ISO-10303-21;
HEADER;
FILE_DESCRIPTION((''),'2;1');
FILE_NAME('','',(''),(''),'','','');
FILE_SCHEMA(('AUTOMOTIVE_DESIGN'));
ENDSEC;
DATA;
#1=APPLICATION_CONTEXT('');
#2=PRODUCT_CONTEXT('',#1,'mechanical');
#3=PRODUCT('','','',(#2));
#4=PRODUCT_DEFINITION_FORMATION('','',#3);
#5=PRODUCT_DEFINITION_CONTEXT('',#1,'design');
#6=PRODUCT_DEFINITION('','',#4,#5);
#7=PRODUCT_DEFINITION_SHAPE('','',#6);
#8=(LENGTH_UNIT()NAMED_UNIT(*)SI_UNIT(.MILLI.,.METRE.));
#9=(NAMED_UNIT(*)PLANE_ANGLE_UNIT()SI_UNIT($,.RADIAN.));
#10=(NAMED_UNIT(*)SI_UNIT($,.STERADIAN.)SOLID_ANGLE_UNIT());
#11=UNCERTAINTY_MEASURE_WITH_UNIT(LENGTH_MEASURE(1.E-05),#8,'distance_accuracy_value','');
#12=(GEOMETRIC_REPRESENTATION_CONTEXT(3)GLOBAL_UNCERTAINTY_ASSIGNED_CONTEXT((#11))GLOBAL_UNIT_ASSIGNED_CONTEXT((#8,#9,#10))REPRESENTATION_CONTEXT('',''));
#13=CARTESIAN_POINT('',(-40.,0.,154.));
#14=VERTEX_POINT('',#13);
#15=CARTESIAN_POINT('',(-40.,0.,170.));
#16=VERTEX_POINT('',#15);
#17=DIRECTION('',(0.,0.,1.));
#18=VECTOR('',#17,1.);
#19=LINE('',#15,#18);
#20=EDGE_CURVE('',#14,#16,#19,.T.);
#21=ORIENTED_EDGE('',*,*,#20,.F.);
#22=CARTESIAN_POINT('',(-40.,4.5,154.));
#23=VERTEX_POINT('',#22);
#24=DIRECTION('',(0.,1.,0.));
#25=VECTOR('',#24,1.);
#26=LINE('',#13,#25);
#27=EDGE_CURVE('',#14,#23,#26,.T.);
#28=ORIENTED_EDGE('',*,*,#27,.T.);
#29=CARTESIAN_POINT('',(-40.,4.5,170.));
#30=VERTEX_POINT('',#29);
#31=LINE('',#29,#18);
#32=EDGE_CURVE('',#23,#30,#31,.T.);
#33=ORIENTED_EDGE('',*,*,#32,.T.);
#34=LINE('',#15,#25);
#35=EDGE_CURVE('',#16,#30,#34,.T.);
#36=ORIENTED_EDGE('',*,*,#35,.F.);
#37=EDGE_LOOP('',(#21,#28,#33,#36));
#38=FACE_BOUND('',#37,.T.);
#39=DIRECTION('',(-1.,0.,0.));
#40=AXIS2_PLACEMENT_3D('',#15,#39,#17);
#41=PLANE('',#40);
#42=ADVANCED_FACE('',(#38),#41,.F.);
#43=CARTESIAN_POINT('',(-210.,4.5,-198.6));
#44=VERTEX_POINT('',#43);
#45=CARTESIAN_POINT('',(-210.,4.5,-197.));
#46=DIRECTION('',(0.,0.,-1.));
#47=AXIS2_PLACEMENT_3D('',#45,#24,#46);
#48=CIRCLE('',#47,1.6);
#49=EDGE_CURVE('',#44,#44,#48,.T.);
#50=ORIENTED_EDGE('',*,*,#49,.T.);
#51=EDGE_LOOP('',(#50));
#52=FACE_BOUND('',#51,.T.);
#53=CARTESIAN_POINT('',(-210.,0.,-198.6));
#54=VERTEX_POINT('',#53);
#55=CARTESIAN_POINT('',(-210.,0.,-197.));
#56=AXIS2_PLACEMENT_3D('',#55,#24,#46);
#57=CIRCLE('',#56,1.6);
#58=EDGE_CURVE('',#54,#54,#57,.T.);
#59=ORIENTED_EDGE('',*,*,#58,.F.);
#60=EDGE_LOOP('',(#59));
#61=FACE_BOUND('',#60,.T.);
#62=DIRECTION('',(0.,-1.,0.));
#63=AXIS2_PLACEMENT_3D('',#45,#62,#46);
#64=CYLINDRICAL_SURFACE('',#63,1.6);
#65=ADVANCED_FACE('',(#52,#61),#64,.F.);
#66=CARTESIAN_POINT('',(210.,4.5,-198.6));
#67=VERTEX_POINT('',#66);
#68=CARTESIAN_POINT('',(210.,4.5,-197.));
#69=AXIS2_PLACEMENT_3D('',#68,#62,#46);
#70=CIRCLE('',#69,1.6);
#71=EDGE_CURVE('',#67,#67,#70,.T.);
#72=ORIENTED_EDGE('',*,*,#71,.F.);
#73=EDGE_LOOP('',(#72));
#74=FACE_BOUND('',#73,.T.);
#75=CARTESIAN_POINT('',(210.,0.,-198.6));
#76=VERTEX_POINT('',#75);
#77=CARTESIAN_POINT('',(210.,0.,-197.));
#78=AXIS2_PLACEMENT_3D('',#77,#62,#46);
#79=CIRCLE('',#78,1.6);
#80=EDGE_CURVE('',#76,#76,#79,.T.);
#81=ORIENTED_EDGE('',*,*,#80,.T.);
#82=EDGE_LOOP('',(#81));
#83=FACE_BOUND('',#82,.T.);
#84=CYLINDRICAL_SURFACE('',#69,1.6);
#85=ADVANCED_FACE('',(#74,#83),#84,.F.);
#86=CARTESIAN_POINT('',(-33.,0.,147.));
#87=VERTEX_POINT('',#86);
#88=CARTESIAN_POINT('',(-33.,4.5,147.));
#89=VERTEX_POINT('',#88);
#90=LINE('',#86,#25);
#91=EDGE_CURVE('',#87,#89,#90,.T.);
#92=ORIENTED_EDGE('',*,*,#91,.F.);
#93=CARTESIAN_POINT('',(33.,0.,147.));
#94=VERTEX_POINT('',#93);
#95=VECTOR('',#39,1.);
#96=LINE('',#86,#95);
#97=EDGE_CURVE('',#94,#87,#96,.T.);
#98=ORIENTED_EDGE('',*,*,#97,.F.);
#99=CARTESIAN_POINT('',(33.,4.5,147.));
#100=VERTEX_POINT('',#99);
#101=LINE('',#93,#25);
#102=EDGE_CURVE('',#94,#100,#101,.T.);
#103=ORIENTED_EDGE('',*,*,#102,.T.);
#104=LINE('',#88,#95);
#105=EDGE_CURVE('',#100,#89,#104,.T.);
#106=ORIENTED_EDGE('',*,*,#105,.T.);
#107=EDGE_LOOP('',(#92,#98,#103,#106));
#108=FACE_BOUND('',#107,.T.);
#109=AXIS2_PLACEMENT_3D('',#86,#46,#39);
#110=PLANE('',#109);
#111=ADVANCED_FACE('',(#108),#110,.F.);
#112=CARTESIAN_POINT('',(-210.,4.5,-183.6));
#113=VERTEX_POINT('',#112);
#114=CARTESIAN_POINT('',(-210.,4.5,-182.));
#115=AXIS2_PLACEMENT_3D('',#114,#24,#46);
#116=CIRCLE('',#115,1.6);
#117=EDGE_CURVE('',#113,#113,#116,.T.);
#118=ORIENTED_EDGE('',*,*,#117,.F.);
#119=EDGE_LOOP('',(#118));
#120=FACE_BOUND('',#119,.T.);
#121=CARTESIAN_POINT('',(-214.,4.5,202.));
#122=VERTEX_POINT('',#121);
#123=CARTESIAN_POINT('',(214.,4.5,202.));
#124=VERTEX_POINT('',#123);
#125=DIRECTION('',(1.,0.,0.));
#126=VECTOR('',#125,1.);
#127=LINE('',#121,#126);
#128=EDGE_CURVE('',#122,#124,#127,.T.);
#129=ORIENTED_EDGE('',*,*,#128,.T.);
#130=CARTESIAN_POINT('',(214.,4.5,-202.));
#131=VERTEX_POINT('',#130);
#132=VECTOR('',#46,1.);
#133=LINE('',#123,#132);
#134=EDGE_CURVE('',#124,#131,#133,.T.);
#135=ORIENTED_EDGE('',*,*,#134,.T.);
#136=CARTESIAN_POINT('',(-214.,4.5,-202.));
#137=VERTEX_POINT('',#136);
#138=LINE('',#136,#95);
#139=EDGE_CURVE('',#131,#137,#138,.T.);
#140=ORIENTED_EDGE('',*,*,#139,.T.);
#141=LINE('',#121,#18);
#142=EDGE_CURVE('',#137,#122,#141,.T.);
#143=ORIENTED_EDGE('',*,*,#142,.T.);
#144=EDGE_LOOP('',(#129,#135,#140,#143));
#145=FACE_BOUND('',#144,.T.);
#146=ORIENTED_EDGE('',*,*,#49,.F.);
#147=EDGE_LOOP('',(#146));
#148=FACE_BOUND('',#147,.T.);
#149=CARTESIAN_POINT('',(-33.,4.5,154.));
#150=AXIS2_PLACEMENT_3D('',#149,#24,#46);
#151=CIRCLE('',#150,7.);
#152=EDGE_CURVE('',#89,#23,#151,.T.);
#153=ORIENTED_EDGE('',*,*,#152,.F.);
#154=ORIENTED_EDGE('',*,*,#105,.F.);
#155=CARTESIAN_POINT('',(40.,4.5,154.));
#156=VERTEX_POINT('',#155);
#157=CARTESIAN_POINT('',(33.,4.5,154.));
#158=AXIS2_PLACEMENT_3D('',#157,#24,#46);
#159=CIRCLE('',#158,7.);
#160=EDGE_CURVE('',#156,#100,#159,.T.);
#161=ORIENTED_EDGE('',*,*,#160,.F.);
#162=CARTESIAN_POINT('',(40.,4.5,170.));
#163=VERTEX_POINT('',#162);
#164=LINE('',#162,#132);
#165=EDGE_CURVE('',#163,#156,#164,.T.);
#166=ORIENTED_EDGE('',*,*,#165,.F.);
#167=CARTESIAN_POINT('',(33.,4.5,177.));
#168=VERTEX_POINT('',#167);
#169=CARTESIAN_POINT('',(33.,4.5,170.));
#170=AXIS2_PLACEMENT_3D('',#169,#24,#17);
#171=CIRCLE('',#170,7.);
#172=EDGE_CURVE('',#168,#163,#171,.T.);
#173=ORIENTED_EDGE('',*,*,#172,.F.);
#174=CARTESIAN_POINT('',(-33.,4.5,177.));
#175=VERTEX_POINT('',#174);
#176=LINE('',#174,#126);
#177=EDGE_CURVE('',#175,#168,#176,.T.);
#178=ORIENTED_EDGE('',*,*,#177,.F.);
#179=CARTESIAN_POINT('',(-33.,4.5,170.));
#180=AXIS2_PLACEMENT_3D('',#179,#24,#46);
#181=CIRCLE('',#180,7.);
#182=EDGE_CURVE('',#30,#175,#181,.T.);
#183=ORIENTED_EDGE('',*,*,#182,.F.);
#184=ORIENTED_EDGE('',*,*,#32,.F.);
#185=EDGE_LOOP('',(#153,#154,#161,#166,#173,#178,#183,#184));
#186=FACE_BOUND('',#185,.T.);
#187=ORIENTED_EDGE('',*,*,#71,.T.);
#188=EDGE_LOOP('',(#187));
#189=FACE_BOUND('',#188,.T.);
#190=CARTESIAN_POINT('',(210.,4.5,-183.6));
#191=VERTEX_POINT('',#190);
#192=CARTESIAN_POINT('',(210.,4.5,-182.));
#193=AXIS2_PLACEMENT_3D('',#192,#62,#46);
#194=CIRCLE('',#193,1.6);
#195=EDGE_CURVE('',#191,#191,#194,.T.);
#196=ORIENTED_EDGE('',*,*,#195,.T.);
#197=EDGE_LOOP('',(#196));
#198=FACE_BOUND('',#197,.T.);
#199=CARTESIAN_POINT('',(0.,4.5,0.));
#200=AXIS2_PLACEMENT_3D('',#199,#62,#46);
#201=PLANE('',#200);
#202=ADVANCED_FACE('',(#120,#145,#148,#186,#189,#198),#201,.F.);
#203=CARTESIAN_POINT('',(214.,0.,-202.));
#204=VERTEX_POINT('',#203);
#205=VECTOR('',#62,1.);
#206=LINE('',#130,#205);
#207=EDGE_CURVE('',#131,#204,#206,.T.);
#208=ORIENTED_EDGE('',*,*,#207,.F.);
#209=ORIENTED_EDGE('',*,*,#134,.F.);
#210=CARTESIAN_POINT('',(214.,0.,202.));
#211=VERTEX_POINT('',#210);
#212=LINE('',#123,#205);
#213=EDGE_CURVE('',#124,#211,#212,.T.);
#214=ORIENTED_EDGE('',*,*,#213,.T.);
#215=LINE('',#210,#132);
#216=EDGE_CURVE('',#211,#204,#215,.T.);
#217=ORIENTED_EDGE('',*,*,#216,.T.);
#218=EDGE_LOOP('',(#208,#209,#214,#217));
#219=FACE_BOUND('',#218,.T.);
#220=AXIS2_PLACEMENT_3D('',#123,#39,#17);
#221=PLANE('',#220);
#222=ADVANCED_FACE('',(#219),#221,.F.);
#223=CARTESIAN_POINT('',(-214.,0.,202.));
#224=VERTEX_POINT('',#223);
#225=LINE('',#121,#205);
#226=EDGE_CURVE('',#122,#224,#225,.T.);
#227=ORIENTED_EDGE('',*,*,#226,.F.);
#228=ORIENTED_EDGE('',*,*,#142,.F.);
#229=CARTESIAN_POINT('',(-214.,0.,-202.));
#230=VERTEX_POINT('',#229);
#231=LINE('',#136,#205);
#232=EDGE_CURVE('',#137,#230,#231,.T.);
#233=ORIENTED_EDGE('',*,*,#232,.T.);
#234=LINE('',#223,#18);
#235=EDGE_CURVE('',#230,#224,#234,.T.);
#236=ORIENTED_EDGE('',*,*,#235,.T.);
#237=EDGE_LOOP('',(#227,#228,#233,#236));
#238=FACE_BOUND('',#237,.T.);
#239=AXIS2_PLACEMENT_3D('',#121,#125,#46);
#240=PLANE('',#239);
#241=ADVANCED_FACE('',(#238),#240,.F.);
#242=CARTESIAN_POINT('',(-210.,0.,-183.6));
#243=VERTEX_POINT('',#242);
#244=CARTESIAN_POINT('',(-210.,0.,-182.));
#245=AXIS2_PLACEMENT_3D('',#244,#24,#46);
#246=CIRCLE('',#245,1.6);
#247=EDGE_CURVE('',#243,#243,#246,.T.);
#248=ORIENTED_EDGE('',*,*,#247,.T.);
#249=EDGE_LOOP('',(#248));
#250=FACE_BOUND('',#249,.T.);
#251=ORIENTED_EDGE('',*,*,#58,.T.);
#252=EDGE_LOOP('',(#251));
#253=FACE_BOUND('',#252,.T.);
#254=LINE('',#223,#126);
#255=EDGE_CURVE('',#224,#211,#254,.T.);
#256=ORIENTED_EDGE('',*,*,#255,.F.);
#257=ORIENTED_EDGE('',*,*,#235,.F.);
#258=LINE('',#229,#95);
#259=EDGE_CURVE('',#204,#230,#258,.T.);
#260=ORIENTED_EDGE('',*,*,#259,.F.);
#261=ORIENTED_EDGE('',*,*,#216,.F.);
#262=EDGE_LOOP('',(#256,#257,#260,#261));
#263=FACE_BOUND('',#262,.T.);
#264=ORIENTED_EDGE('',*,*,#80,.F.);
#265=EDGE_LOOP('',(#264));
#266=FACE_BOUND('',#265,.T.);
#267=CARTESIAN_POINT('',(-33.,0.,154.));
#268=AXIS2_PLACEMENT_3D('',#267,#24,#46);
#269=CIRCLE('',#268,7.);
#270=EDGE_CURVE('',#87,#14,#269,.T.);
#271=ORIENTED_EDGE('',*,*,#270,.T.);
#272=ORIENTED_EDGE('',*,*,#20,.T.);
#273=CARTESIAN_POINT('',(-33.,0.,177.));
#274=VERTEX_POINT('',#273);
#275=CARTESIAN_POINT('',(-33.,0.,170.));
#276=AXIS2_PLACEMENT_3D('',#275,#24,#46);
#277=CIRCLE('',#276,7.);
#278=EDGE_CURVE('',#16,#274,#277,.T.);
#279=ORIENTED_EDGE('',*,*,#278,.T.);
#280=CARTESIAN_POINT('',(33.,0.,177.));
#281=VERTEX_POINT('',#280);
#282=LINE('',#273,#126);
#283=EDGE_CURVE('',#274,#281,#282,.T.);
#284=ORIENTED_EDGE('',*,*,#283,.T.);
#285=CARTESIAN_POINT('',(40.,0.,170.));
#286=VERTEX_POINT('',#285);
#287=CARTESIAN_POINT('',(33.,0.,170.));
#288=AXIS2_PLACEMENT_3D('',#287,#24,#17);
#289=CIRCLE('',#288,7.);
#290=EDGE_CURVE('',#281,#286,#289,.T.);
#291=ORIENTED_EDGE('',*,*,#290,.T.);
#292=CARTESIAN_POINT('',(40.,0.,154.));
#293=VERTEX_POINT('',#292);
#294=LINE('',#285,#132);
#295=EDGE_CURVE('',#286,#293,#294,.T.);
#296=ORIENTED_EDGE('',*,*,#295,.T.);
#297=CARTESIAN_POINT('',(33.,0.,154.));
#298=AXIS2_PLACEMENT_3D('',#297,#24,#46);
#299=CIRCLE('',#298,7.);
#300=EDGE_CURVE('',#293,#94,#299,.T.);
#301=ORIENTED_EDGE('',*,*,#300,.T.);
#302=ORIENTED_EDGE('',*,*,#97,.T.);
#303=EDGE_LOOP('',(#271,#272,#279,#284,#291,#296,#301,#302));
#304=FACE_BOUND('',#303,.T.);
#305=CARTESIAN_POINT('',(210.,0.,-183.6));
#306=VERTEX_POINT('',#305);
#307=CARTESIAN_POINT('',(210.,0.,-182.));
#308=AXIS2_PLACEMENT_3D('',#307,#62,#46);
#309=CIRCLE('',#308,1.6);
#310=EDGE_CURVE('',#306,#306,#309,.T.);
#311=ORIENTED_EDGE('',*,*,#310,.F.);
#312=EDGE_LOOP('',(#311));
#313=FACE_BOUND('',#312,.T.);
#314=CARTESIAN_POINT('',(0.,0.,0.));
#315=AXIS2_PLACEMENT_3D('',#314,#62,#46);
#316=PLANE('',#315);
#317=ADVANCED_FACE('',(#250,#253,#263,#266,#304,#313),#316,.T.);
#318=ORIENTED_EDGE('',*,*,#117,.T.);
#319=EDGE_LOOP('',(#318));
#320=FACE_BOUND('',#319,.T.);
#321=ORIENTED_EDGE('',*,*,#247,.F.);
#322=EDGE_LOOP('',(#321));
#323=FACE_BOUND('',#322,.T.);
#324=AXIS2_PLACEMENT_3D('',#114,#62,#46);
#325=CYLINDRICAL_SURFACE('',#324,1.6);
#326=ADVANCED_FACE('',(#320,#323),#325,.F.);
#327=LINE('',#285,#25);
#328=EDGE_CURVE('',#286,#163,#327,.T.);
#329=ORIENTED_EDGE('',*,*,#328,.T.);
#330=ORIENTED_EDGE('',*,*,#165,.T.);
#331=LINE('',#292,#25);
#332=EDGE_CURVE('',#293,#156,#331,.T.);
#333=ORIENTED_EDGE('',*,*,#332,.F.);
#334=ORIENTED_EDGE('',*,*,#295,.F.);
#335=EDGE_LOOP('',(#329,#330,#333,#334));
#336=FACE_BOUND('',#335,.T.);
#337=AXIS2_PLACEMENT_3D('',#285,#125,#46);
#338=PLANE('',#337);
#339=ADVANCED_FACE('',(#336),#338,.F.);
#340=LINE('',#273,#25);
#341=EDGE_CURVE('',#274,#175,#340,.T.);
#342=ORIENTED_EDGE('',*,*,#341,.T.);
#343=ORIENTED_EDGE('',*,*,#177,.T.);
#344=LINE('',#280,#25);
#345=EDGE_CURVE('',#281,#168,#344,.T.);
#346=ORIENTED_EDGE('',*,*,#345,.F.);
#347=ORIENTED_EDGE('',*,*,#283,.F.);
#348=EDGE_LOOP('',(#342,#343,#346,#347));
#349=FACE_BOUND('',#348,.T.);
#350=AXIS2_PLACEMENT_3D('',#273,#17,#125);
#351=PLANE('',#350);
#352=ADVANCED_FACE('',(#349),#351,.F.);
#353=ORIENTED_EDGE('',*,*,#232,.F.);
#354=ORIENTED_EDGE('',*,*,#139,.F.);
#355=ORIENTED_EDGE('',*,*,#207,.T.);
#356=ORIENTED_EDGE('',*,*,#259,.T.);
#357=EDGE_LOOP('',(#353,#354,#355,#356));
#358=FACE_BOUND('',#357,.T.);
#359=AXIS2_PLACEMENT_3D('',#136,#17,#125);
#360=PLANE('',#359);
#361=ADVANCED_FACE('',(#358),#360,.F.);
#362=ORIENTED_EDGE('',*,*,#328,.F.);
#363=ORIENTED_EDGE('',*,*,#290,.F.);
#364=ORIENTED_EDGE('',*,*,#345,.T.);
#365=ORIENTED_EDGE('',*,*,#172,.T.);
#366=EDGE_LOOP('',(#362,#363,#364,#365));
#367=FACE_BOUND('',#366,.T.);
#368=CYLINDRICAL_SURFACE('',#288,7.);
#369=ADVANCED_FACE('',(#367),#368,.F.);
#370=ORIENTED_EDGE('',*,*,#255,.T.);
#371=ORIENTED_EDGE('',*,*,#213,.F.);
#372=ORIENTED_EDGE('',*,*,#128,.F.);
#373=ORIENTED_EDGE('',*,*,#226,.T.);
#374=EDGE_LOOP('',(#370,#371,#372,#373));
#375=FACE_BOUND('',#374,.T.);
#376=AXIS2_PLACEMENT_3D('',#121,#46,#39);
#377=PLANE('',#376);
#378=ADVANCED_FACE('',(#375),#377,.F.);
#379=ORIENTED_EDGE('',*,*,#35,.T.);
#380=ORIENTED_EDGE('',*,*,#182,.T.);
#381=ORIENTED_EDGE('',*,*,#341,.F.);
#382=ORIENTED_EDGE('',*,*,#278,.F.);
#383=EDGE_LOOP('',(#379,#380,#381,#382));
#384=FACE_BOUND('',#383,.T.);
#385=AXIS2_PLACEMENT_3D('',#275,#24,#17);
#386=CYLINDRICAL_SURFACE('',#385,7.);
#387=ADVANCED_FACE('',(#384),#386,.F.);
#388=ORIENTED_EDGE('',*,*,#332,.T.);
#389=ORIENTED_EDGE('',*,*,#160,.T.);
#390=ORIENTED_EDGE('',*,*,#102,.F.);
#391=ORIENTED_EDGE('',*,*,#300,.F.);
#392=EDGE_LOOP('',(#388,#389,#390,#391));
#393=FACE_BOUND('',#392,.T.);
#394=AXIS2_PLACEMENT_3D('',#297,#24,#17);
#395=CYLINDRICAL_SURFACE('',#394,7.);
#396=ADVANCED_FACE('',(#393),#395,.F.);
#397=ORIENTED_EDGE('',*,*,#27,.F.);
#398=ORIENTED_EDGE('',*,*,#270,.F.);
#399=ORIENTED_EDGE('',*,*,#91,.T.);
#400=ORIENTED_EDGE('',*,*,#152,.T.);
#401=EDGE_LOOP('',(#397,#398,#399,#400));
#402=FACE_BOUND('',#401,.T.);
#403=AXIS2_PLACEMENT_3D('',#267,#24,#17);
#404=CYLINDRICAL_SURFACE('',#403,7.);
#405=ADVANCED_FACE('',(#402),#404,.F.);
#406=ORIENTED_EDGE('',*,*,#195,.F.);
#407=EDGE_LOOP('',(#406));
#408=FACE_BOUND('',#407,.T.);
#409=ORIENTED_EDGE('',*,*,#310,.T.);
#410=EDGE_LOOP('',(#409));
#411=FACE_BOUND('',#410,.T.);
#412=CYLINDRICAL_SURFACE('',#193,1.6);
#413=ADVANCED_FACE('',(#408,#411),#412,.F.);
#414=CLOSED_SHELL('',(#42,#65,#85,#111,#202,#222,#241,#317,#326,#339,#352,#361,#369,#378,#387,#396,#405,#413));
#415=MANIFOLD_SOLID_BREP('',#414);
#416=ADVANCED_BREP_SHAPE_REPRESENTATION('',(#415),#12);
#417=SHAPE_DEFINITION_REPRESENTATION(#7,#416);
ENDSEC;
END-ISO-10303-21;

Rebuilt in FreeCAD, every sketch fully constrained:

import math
import FreeCAD as App
import Part
import Sketcher
from FreeCAD import Vector
Q = App.Units.Quantity

doc = App.newDocument("Part")
body = doc.addObject("PartDesign::Body", "Body")

# Sketch on XZ plane
sketch1 = doc.addObject("Sketcher::SketchObject", "Sketch")
body.addObject(sketch1)
sketch1.AttachmentSupport = (doc.XZ_Plane, [""])
sketch1.MapMode = "FlatFace"
sketch1.addGeometry(Part.LineSegment(Vector(-214, -202, 0), Vector(-214, 202, 0)), False)
sketch1.addGeometry(Part.LineSegment(Vector(-214, 202, 0), Vector(214, 202, 0)), False)
sketch1.addGeometry(Part.LineSegment(Vector(214, 202, 0), Vector(214, -202, 0)), False)
sketch1.addGeometry(Part.LineSegment(Vector(214, -202, 0), Vector(-214, -202, 0)), False)
sketch1.addConstraint(Sketcher.Constraint("Coincident", 0, 2, 1, 1))
sketch1.addConstraint(Sketcher.Constraint("Coincident", 1, 2, 2, 1))
sketch1.addConstraint(Sketcher.Constraint("Coincident", 2, 2, 3, 1))
sketch1.addConstraint(Sketcher.Constraint("Coincident", 3, 2, 0, 1))
sketch1.addConstraint(Sketcher.Constraint("Vertical", 0))
sketch1.addConstraint(Sketcher.Constraint("Horizontal", 1))
sketch1.addConstraint(Sketcher.Constraint("Vertical", 2))
sketch1.addConstraint(Sketcher.Constraint("Horizontal", 3))
sketch1.addConstraint(Sketcher.Constraint("Symmetric", 0, 2, 2, 2, -1, 1))
sketch1.addConstraint(Sketcher.Constraint("DistanceX", 1, 1, 1, 2, Q("428 mm")))
sketch1.addConstraint(Sketcher.Constraint("DistanceY", 0, 1, 0, 2, Q("404 mm")))
pad1 = doc.addObject("PartDesign::Pad", "Pad")
body.addObject(pad1)
pad1.Profile = sketch1
pad1.Length = 4.5
pad1.Reversed = True

# Sketch on XZ plane
sketch2 = doc.addObject("Sketcher::SketchObject", "Sketch001")
body.addObject(sketch2)
sketch2.AttachmentSupport = (doc.XZ_Plane, [""])
sketch2.MapMode = "FlatFace"
sketch2.addGeometry(Part.Circle(Vector(210, -182, 0), Vector(0, 0, 1), 1.6), False)
sketch2.addGeometry(Part.Circle(Vector(210, -197, 0), Vector(0, 0, 1), 1.6), False)
sketch2.addConstraint(Sketcher.Constraint("Equal", 0, 1))
sketch2.addConstraint(Sketcher.Constraint("Vertical", 0, 3, 1, 3))
sketch2.addConstraint(Sketcher.Constraint("Diameter", 0, Q("3.2 mm")))
sketch2.addConstraint(Sketcher.Constraint("DistanceX", -1, 1, 0, 3, Q("210 mm")))
sketch2.addConstraint(Sketcher.Constraint("DistanceY", 0, 3, -1, 1, Q("182 mm")))
sketch2.addConstraint(Sketcher.Constraint("DistanceY", 1, 3, -1, 1, Q("197 mm")))
pocket1 = doc.addObject("PartDesign::Pocket", "Pocket")
body.addObject(pocket1)
pocket1.Profile = sketch2
pocket1.Type = "ThroughAll"
doc.recompute()

mirrored = doc.addObject("PartDesign::Mirrored", "Mirrored")
body.addObject(mirrored)
mirrored.Originals = [pocket1]
mirrored.MirrorPlane = (doc.YZ_Plane, [""])
body.Tip = mirrored

# Sketch on XZ plane
sketch3 = doc.addObject("Sketcher::SketchObject", "Sketch002")
body.addObject(sketch3)
sketch3.AttachmentSupport = (doc.XZ_Plane, [""])
sketch3.MapMode = "FlatFace"
sketch3.AttachmentOffset = App.Placement(Vector(0, 0, -4.5), App.Rotation())
sketch3.addGeometry(Part.LineSegment(Vector(-33, 177, 0), Vector(33, 177, 0)), False)
sketch3.addGeometry(Part.ArcOfCircle(Part.Circle(Vector(33, 170, 0), Vector(0, 0, 1), 7), math.radians(0), math.radians(90)), False)
sketch3.addGeometry(Part.LineSegment(Vector(40, 170, 0), Vector(40, 154, 0)), False)
sketch3.addGeometry(Part.ArcOfCircle(Part.Circle(Vector(33, 154, 0), Vector(0, 0, 1), 7), math.radians(-90), math.radians(0)), False)
sketch3.addGeometry(Part.LineSegment(Vector(33, 147, 0), Vector(-33, 147, 0)), False)
sketch3.addGeometry(Part.ArcOfCircle(Part.Circle(Vector(-33, 154, 0), Vector(0, 0, 1), 7), math.radians(-180), math.radians(-90)), False)
sketch3.addGeometry(Part.LineSegment(Vector(-40, 154, 0), Vector(-40, 170, 0)), False)
sketch3.addGeometry(Part.ArcOfCircle(Part.Circle(Vector(-33, 170, 0), Vector(0, 0, 1), 7), math.radians(90), math.radians(180)), False)
sketch3.addConstraint(Sketcher.Constraint("Tangent", 0, 2, 1, 2))
sketch3.addConstraint(Sketcher.Constraint("Tangent", 1, 1, 2, 1))
sketch3.addConstraint(Sketcher.Constraint("Tangent", 2, 2, 3, 2))
sketch3.addConstraint(Sketcher.Constraint("Tangent", 3, 1, 4, 1))
sketch3.addConstraint(Sketcher.Constraint("Tangent", 4, 2, 5, 2))
sketch3.addConstraint(Sketcher.Constraint("Tangent", 5, 1, 6, 1))
sketch3.addConstraint(Sketcher.Constraint("Tangent", 6, 2, 7, 2))
sketch3.addConstraint(Sketcher.Constraint("Tangent", 7, 1, 0, 1))
sketch3.addConstraint(Sketcher.Constraint("Horizontal", 0))
sketch3.addConstraint(Sketcher.Constraint("Vertical", 2))
sketch3.addConstraint(Sketcher.Constraint("Horizontal", 4))
sketch3.addConstraint(Sketcher.Constraint("Vertical", 6))
sketch3.addConstraint(Sketcher.Constraint("Equal", 1, 3))
sketch3.addConstraint(Sketcher.Constraint("Equal", 3, 5))
sketch3.addConstraint(Sketcher.Constraint("Equal", 5, 7))
sketch3.addConstraint(Sketcher.Constraint("Radius", 1, Q("7 mm")))
sketch3.addConstraint(Sketcher.Constraint("DistanceX", 0, 1, 0, 2, Q("66 mm")))
sketch3.addConstraint(Sketcher.Constraint("DistanceY", 2, 2, 2, 1, Q("16 mm")))
sketch3.addConstraint(Sketcher.Constraint("DistanceX", -1, 1, 1, 3, Q("33 mm")))
sketch3.addConstraint(Sketcher.Constraint("DistanceY", -1, 1, 1, 3, Q("170 mm")))
pocket2 = doc.addObject("PartDesign::Pocket", "Pocket001")
body.addObject(pocket2)
pocket2.Profile = sketch3
pocket2.Type = "ThroughAll"
pocket2.Reversed = True

doc.recompute()
